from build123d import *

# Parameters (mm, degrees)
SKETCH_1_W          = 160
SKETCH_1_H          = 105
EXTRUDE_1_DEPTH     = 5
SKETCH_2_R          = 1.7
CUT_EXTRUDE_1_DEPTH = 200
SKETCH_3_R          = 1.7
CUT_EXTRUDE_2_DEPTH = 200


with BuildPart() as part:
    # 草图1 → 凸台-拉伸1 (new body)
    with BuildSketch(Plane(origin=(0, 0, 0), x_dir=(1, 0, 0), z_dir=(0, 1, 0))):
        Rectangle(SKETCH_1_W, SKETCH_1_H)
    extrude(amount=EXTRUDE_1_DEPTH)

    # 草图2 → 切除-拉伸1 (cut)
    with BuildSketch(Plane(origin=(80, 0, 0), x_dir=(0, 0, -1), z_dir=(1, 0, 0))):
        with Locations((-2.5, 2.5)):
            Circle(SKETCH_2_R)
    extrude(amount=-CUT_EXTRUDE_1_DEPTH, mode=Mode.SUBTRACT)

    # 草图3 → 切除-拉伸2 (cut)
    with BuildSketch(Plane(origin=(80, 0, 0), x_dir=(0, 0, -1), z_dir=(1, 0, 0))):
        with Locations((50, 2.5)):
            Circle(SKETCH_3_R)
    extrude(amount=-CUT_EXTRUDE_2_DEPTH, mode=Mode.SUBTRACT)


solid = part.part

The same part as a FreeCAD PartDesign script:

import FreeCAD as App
import Part
import Sketcher

V = App.Vector

doc = App.newDocument("Part")
params = doc.addObject("Spreadsheet::Sheet", "Params")
for row, (alias, value) in enumerate([
    ("sketch1_width", "160 mm"),
    ("sketch1_height", "105 mm"),
    ("pad1_length", "5 mm"),
    ("sketch2_diameter", "3.4 mm"),
    ("pocket1_length", "200 mm"),
    ("sketch3_diameter", "3.4 mm"),
    ("pocket2_length", "200 mm"),
], start=1):
    params.set(f"A{row}", alias)
    params.set(f"B{row}", "=" + value)
    params.setAlias(f"B{row}", alias)

body = doc.addObject("PartDesign::Body", "Body")

sketch1 = body.newObject("Sketcher::SketchObject", "Sketch")
sketch1.AttachmentSupport = (doc.getObject("XZ_Plane"), [""])
sketch1.MapMode = "FlatFace"
sketch1.addGeometry([
    Part.LineSegment(V(-80, -52, 0), V(-80, 52, 0)),
    Part.LineSegment(V(-80, 52, 0), V(80, 52, 0)),
    Part.LineSegment(V(80, 52, 0), V(80, -52, 0)),
    Part.LineSegment(V(80, -52, 0), V(-80, -52, 0)),
], False)
sketch1.addConstraint([
    Sketcher.Constraint("Coincident", 0, 2, 1, 1),
    Sketcher.Constraint("Coincident", 1, 2, 2, 1),
    Sketcher.Constraint("Coincident", 2, 2, 3, 1),
    Sketcher.Constraint("Coincident", 3, 2, 0, 1),
    Sketcher.Constraint("Vertical", 0),
    Sketcher.Constraint("Horizontal", 1),
    Sketcher.Constraint("Vertical", 2),
    Sketcher.Constraint("Horizontal", 3),
    Sketcher.Constraint("Symmetric", 0, 2, 2, 2, -1, 1),
    Sketcher.Constraint("DistanceX", 1, 1, 1, 2, 160.0),
    Sketcher.Constraint("DistanceY", 0, 1, 0, 2, 105.0),
])
sketch1.setExpression("Constraints[9]", "Params.sketch1_width")
sketch1.setExpression("Constraints[10]", "Params.sketch1_height")
pad1 = body.newObject("PartDesign::Pad", "Pad")
pad1.Profile = sketch1
pad1.setExpression("Length", "Params.pad1_length")
pad1.Reversed = True

sketch2 = body.newObject("Sketcher::SketchObject", "Sketch001")
sketch2.AttachmentSupport = (doc.getObject("YZ_Plane"), [""])
sketch2.MapMode = "FlatFace"
sketch2.AttachmentOffset = App.Placement(V(0, 0, 80), App.Rotation())
sketch2.addGeometry(Part.Circle(V(2.5, 2.5, 0), V(0, 0, 1), 1.7), False)
sketch2.addConstraint([
    Sketcher.Constraint("Diameter", 0, 3.4),
    Sketcher.Constraint("DistanceX", -1, 1, 0, 3, 2.5),
    Sketcher.Constraint("DistanceY", -1, 1, 0, 3, 2.5),
])
sketch2.setExpression("Constraints[0]", "Params.sketch2_diameter")
pocket1 = body.newObject("PartDesign::Pocket", "Pocket")
pocket1.Profile = sketch2
pocket1.setExpression("Length", "Params.pocket1_length")

sketch3 = body.newObject("Sketcher::SketchObject", "Sketch002")
sketch3.AttachmentSupport = (doc.getObject("YZ_Plane"), [""])
sketch3.MapMode = "FlatFace"
sketch3.AttachmentOffset = App.Placement(V(0, 0, 80), App.Rotation())
sketch3.addGeometry(Part.Circle(V(2.5, -50, 0), V(0, 0, 1), 1.7), False)
sketch3.addConstraint([
    Sketcher.Constraint("Diameter", 0, 3.4),
    Sketcher.Constraint("DistanceY", 0, 3, -1, 1, 50.0),
    Sketcher.Constraint("DistanceX", -1, 1, 0, 3, 2.5),
])
sketch3.setExpression("Constraints[0]", "Params.sketch3_diameter")
pocket2 = body.newObject("PartDesign::Pocket", "Pocket001")
pocket2.Profile = sketch3
pocket2.setExpression("Length", "Params.pocket2_length")

doc.recompute()
